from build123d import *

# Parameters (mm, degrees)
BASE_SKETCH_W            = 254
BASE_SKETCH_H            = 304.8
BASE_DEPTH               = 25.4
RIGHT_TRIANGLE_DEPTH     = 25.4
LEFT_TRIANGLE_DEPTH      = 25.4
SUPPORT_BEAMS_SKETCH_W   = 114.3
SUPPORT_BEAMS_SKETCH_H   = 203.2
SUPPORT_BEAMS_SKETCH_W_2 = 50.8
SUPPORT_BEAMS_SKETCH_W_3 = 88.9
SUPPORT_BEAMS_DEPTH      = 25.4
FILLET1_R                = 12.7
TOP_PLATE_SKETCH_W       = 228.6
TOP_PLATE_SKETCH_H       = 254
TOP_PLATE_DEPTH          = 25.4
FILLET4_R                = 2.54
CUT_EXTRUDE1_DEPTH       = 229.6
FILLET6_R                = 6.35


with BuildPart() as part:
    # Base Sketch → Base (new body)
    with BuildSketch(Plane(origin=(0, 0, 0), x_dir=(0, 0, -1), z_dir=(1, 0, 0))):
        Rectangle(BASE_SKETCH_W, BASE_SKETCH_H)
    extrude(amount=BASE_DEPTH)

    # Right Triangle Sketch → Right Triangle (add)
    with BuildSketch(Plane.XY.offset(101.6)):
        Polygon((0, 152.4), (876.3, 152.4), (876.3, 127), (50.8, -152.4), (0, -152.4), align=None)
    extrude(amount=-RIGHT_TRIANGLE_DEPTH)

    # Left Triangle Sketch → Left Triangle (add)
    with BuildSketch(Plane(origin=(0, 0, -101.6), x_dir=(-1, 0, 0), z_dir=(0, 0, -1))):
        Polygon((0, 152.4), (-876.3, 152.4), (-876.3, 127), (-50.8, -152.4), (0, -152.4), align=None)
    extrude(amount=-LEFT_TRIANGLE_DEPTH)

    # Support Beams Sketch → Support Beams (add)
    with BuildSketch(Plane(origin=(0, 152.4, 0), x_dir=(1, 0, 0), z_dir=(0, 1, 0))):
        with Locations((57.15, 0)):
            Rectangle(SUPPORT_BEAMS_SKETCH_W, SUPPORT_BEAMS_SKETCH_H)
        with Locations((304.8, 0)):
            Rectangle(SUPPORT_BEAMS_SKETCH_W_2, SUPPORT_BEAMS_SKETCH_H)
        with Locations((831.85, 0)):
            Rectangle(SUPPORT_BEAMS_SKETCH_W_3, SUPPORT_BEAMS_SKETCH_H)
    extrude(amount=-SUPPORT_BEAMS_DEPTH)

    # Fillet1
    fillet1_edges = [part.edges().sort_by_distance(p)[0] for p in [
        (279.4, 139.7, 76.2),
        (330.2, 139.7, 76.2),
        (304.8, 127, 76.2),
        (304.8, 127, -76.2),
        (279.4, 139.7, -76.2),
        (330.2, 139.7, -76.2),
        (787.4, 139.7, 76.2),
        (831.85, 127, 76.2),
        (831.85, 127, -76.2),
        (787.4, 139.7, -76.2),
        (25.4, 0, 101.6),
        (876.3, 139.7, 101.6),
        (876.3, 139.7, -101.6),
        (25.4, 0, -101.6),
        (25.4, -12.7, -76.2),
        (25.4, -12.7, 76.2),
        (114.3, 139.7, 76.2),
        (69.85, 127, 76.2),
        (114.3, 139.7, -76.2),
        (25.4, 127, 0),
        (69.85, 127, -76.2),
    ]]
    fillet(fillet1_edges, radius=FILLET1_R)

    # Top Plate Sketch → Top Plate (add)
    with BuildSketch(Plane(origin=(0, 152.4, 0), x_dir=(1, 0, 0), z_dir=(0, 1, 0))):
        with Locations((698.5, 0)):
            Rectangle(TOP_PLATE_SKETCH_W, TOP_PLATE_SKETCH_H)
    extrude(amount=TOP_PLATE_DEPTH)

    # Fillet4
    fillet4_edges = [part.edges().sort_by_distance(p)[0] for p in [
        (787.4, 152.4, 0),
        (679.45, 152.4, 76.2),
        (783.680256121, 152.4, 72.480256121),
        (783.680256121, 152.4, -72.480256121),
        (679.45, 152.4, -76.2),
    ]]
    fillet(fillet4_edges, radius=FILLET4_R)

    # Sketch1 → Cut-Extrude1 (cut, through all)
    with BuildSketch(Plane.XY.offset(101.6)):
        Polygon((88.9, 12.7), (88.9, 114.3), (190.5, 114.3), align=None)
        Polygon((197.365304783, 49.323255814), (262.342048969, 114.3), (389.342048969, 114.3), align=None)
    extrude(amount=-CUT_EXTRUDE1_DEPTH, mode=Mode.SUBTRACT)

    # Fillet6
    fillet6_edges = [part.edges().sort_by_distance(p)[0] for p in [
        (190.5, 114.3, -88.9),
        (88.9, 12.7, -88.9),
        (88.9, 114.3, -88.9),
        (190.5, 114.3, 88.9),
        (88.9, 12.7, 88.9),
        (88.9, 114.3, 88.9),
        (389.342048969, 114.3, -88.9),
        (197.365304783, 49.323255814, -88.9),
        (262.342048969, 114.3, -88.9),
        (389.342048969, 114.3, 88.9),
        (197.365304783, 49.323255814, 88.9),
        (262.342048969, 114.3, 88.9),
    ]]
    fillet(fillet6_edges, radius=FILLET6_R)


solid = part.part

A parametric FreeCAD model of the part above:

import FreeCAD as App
import Part
import Sketcher
Q = App.Units.Quantity


def edges_at(feature, points):
    """Names of the edges that pass closest to the given points."""
    edges = feature.Shape.Edges
    near = lambda p: min(range(len(edges)), key=lambda i: edges[i].distToShape(Part.Vertex(*p))[0])
    return sorted({f"Edge{near(p) + 1}" for p in points})


def add_polygon(sketch, points):
    """Adds a closed chain of lines whose ends are joined by coincident constraints."""
    first, n = sketch.GeometryCount, len(points)
    for a, b in zip(points, points[1:] + points[:1]):
        sketch.addGeometry(Part.LineSegment(App.Vector(*a, 0), App.Vector(*b, 0)), False)
    for i in range(n):
        sketch.addConstraint(Sketcher.Constraint("Coincident", first + i, 2, first + (i + 1) % n, 1))

doc = App.newDocument("Part")
body = doc.addObject("PartDesign::Body", "Body")

# Sketch on YZ plane
sketch1 = body.newObject("Sketcher::SketchObject", "Sketch")
sketch1.AttachmentSupport = (doc.getObject("YZ_Plane"), [""])
sketch1.MapMode = "FlatFace"
add_polygon(sketch1, [(152, 127), (-152, 127), (-152, -127), (152, -127)])  # lines 0-3
sketch1.addConstraint(Sketcher.Constraint("Horizontal", 0))
sketch1.addConstraint(Sketcher.Constraint("Vertical", 1))
sketch1.addConstraint(Sketcher.Constraint("Horizontal", 2))
sketch1.addConstraint(Sketcher.Constraint("Vertical", 3))
sketch1.addConstraint(Sketcher.Constraint("Symmetric", 0, 2, 2, 2, -1, 1))
sketch1.addConstraint(Sketcher.Constraint("DistanceX", 0, 2, 0, 1, Q("12 in")))
sketch1.addConstraint(Sketcher.Constraint("DistanceY", 1, 2, 1, 1, Q("10 in")))
pad1 = body.newObject("PartDesign::Pad", "Pad")
pad1.Profile = sketch1
pad1.Length = Q("1 in")

# Sketch on XY plane
sketch2 = body.newObject("Sketcher::SketchObject", "Sketch001")
sketch2.AttachmentSupport = (doc.getObject("XY_Plane"), [""])
sketch2.MapMode = "FlatFace"
sketch2.AttachmentOffset = App.Placement(App.Vector(0, 0, 4 * 25.4), App.Rotation())
add_polygon(sketch2, [(876, 152), (0, 152), (0, -152), (51, -152), (876, 127)])  # lines 0-4
sketch2.addConstraint(Sketcher.Constraint("Horizontal", 0))
sketch2.addConstraint(Sketcher.Constraint("Vertical", 1))
sketch2.addConstraint(Sketcher.Constraint("Horizontal", 2))
sketch2.addConstraint(Sketcher.Constraint("Vertical", 4))
sketch2.addConstraint(Sketcher.Constraint("Symmetric", 0, 2, 1, 2, -1, 1))
sketch2.addConstraint(Sketcher.Constraint("DistanceX", 2, 1, 2, 2, Q("2 in")))
sketch2.addConstraint(Sketcher.Constraint("DistanceY", 1, 2, 1, 1, Q("12 in")))
sketch2.addConstraint(Sketcher.Constraint("DistanceY", 4, 1, 4, 2, Q("1 in")))
sketch2.addConstraint(Sketcher.Constraint("DistanceX", 0, 2, 0, 1, Q("34.5 in")))
pad2 = body.newObject("PartDesign::Pad", "Pad001")
pad2.Profile = sketch2
pad2.Length = Q("1 in")
pad2.Reversed = True

# Sketch on XY plane
sketch3 = body.newObject("Sketcher::SketchObject", "Sketch002")
sketch3.AttachmentSupport = (doc.getObject("XY_Plane"), [""])
sketch3.MapMode = "FlatFace"
sketch3.AttachmentOffset = App.Placement(App.Vector(0, 0, -4 * 25.4), App.Rotation())
add_polygon(sketch3, [(0, 152), (876, 152), (876, 127), (51, -152), (0, -152)])  # lines 0-4
sketch3.addConstraint(Sketcher.Constraint("Horizontal", 0))
sketch3.addConstraint(Sketcher.Constraint("Vertical", 1))
sketch3.addConstraint(Sketcher.Constraint("Horizontal", 3))
sketch3.addConstraint(Sketcher.Constraint("Vertical", 4))
sketch3.addConstraint(Sketcher.Constraint("Symmetric", 3, 2, 4, 2, -1, 1))
sketch3.addConstraint(Sketcher.Constraint("DistanceX", 3, 2, 3, 1, Q("2 in")))
sketch3.addConstraint(Sketcher.Constraint("DistanceY", 1, 2, 1, 1, Q("1 in")))
sketch3.addConstraint(Sketcher.Constraint("DistanceY", 4, 1, 4, 2, Q("12 in")))
sketch3.addConstraint(Sketcher.Constraint("DistanceX", 0, 1, 0, 2, Q("34.5 in")))
pad3 = body.newObject("PartDesign::Pad", "Pad002")
pad3.Profile = sketch3
pad3.Length = Q("1 in")

# Sketch on XZ plane
sketch4 = body.newObject("Sketcher::SketchObject", "Sketch003")
sketch4.AttachmentSupport = (doc.getObject("XZ_Plane"), [""])
sketch4.MapMode = "FlatFace"
sketch4.AttachmentOffset = App.Placement(App.Vector(0, 0, -6 * 25.4), App.Rotation())
add_polygon(sketch4, [(0, -102), (0, 102), (114, 102), (114, -102)])  # lines 0-3
add_polygon(sketch4, [(279, -102), (279, 102), (330, 102), (330, -102)])  # lines 4-7
add_polygon(sketch4, [(787, -102), (787, 102), (876, 102), (876, -102)])  # lines 8-11
sketch4.addConstraint(Sketcher.Constraint("Vertical", 0))
sketch4.addConstraint(Sketcher.Constraint("Horizontal", 1))
sketch4.addConstraint(Sketcher.Constraint("Vertical", 2))
sketch4.addConstraint(Sketcher.Constraint("Horizontal", 3))
sketch4.addConstraint(Sketcher.Constraint("Vertical", 4))
sketch4.addConstraint(Sketcher.Constraint("Horizontal", 5))
sketch4.addConstraint(Sketcher.Constraint("Vertical", 6))
sketch4.addConstraint(Sketcher.Constraint("Horizontal", 7))
sketch4.addConstraint(Sketcher.Constraint("Vertical", 8))
sketch4.addConstraint(Sketcher.Constraint("Horizontal", 9))
sketch4.addConstraint(Sketcher.Constraint("Vertical", 10))
sketch4.addConstraint(Sketcher.Constraint("Horizontal", 11))
sketch4.addConstraint(Sketcher.Constraint("Symmetric", 0, 2, 3, 2, -1, 1))
sketch4.addConstraint(Sketcher.Constraint("Horizontal", 1, 2, 4, 2))
sketch4.addConstraint(Sketcher.Constraint("Horizontal", 3, 2, 6, 2))
sketch4.addConstraint(Sketcher.Constraint("Horizontal", 5, 2, 8, 2))
sketch4.addConstraint(Sketcher.Constraint("Horizontal", 7, 2, 10, 2))
sketch4.addConstraint(Sketcher.Constraint("DistanceX", 5, 1, 5, 2, Q("2 in")))
sketch4.addConstraint(Sketcher.Constraint("DistanceY", 0, 1, 0, 2, Q("8 in")))
sketch4.addConstraint(Sketcher.Constraint("DistanceX", 1, 1, 1, 2, Q("4.5 in")))
sketch4.addConstraint(Sketcher.Constraint("DistanceX", 9, 1, 9, 2, Q("3.5 in")))
sketch4.addConstraint(Sketcher.Constraint("DistanceX", -1, 1, 4, 2, Q("11 in")))
sketch4.addConstraint(Sketcher.Constraint("DistanceX", -1, 1, 8, 2, Q("31 in")))
pad4 = body.newObject("PartDesign::Pad", "Pad003")
pad4.Profile = sketch4
pad4.Length = Q("1 in")
doc.recompute()

fillet = body.newObject("PartDesign::Fillet", "Fillet")
fillet.Base = (pad4, edges_at(pad4, [
    (279.4, 139.7, 76.2),
    (330.2, 139.7, 76.2),
    (304.8, 127, 76.2),
    (304.8, 127, -76.2),
    (279.4, 139.7, -76.2),
    (330.2, 139.7, -76.2),
    (787.4, 139.7, 76.2),
    (831.85, 127, 76.2),
    (831.85, 127, -76.2),
    (787.4, 139.7, -76.2),
    (25.4, 0, 101.6),
    (876.3, 139.7, 101.6),
    (876.3, 139.7, -101.6),
    (25.4, 0, -101.6),
    (25.4, -12.7, -76.2),
    (25.4, -12.7, 76.2),
    (114.3, 139.7, 76.2),
    (69.85, 127, 76.2),
    (114.3, 139.7, -76.2),
    (25.4, 127, 0),
    (69.85, 127, -76.2),
]))
fillet.Radius = Q("0.5 in")

# Sketch on XZ plane
sketch5 = body.newObject("Sketcher::SketchObject", "Sketch004")
sketch5.AttachmentSupport = (doc.getObject("XZ_Plane"), [""])
sketch5.MapMode = "FlatFace"
sketch5.AttachmentOffset = App.Placement(App.Vector(0, 0, -6 * 25.4), App.Rotation())
add_polygon(sketch5, [(584, -127), (584, 127), (813, 127), (813, -127)])  # lines 0-3
sketch5.addConstraint(Sketcher.Constraint("Vertical", 0))
sketch5.addConstraint(Sketcher.Constraint("Horizontal", 1))
sketch5.addConstraint(Sketcher.Constraint("Vertical", 2))
sketch5.addConstraint(Sketcher.Constraint("Horizontal", 3))
sketch5.addConstraint(Sketcher.Constraint("DistanceX", 1, 1, 1, 2, Q("9 in")))
sketch5.addConstraint(Sketcher.Constraint("DistanceY", 0, 1, 0, 2, Q("10 in")))
sketch5.addConstraint(Sketcher.Constraint("DistanceX", -1, 1, 0, 2, Q("23 in")))
sketch5.addConstraint(Sketcher.Constraint("DistanceY", -1, 1, 0, 2, Q("5 in")))
pad5 = body.newObject("PartDesign::Pad", "Pad004")
pad5.Profile = sketch5
pad5.Length = Q("1 in")
pad5.Reversed = True
doc.recompute()

fillet2 = body.newObject("PartDesign::Fillet", "Fillet001")
fillet2.Base = (pad5, edges_at(pad5, [
    (787.4, 152.4, 0),
    (679.45, 152.4, 76.2),
    (783.68, 152.4, 72.48),
    (783.68, 152.4, -72.48),
    (679.45, 152.4, -76.2),
]))
fillet2.Radius = Q("0.1 in")

# Sketch on XY plane
sketch6 = body.newObject("Sketcher::SketchObject", "Sketch005")
sketch6.AttachmentSupport = (doc.getObject("XY_Plane"), [""])
sketch6.MapMode = "FlatFace"
sketch6.AttachmentOffset = App.Placement(App.Vector(0, 0, 4 * 25.4), App.Rotation())
add_polygon(sketch6, [(89, 114), (89, 13), (190, 114)])  # lines 0-2
add_polygon(sketch6, [(262, 114), (197, 49), (389, 114)])  # lines 3-5
sketch6.addConstraint(Sketcher.Constraint("Vertical", 0))
sketch6.addConstraint(Sketcher.Constraint("Horizontal", 2))
sketch6.addConstraint(Sketcher.Constraint("Horizontal", 5))
sketch6.addConstraint(Sketcher.Constraint("Parallel", 1, 3))
sketch6.addConstraint(Sketcher.Constraint("Horizontal", 2, 2, 4, 2))
sketch6.addConstraint(Sketcher.Constraint("Equal", 2, 0))
sketch6.addConstraint(Sketcher.Constraint("DistanceX", 2, 2, 2, 1, Q("4 in")))
sketch6.addConstraint(Sketcher.Constraint("DistanceX", 5, 2, 5, 1, Q("5 in")))
sketch6.addConstraint(Sketcher.Constraint("DistanceX", -1, 1, 0, 2, Q("3.5 in")))
sketch6.addConstraint(Sketcher.Constraint("DistanceY", -1, 1, 0, 2, Q("0.5 in")))
sketch6.addConstraint(Sketcher.Constraint("DistanceX", -1, 1, 4, 2, 389.342049))
sketch6.addConstraint(Sketcher.Constraint("Distance", 3, 91.890993))
pocket1 = body.newObject("PartDesign::Pocket", "Pocket")
pocket1.Profile = sketch6
pocket1.Type = "ThroughAll"
doc.recompute()

fillet3 = body.newObject("PartDesign::Fillet", "Fillet002")
fillet3.Base = (pocket1, edges_at(pocket1, [
    (190.5, 114.3, -88.9),
    (88.9, 12.7, -88.9),
    (88.9, 114.3, -88.9),
    (190.5, 114.3, 88.9),
    (88.9, 12.7, 88.9),
    (88.9, 114.3, 88.9),
    (389.342, 114.3, -88.9),
    (197.365, 49.323, -88.9),
    (262.342, 114.3, -88.9),
    (389.342, 114.3, 88.9),
    (197.365, 49.323, 88.9),
    (262.342, 114.3, 88.9),
]))
fillet3.Radius = Q("0.25 in")

doc.recompute()
